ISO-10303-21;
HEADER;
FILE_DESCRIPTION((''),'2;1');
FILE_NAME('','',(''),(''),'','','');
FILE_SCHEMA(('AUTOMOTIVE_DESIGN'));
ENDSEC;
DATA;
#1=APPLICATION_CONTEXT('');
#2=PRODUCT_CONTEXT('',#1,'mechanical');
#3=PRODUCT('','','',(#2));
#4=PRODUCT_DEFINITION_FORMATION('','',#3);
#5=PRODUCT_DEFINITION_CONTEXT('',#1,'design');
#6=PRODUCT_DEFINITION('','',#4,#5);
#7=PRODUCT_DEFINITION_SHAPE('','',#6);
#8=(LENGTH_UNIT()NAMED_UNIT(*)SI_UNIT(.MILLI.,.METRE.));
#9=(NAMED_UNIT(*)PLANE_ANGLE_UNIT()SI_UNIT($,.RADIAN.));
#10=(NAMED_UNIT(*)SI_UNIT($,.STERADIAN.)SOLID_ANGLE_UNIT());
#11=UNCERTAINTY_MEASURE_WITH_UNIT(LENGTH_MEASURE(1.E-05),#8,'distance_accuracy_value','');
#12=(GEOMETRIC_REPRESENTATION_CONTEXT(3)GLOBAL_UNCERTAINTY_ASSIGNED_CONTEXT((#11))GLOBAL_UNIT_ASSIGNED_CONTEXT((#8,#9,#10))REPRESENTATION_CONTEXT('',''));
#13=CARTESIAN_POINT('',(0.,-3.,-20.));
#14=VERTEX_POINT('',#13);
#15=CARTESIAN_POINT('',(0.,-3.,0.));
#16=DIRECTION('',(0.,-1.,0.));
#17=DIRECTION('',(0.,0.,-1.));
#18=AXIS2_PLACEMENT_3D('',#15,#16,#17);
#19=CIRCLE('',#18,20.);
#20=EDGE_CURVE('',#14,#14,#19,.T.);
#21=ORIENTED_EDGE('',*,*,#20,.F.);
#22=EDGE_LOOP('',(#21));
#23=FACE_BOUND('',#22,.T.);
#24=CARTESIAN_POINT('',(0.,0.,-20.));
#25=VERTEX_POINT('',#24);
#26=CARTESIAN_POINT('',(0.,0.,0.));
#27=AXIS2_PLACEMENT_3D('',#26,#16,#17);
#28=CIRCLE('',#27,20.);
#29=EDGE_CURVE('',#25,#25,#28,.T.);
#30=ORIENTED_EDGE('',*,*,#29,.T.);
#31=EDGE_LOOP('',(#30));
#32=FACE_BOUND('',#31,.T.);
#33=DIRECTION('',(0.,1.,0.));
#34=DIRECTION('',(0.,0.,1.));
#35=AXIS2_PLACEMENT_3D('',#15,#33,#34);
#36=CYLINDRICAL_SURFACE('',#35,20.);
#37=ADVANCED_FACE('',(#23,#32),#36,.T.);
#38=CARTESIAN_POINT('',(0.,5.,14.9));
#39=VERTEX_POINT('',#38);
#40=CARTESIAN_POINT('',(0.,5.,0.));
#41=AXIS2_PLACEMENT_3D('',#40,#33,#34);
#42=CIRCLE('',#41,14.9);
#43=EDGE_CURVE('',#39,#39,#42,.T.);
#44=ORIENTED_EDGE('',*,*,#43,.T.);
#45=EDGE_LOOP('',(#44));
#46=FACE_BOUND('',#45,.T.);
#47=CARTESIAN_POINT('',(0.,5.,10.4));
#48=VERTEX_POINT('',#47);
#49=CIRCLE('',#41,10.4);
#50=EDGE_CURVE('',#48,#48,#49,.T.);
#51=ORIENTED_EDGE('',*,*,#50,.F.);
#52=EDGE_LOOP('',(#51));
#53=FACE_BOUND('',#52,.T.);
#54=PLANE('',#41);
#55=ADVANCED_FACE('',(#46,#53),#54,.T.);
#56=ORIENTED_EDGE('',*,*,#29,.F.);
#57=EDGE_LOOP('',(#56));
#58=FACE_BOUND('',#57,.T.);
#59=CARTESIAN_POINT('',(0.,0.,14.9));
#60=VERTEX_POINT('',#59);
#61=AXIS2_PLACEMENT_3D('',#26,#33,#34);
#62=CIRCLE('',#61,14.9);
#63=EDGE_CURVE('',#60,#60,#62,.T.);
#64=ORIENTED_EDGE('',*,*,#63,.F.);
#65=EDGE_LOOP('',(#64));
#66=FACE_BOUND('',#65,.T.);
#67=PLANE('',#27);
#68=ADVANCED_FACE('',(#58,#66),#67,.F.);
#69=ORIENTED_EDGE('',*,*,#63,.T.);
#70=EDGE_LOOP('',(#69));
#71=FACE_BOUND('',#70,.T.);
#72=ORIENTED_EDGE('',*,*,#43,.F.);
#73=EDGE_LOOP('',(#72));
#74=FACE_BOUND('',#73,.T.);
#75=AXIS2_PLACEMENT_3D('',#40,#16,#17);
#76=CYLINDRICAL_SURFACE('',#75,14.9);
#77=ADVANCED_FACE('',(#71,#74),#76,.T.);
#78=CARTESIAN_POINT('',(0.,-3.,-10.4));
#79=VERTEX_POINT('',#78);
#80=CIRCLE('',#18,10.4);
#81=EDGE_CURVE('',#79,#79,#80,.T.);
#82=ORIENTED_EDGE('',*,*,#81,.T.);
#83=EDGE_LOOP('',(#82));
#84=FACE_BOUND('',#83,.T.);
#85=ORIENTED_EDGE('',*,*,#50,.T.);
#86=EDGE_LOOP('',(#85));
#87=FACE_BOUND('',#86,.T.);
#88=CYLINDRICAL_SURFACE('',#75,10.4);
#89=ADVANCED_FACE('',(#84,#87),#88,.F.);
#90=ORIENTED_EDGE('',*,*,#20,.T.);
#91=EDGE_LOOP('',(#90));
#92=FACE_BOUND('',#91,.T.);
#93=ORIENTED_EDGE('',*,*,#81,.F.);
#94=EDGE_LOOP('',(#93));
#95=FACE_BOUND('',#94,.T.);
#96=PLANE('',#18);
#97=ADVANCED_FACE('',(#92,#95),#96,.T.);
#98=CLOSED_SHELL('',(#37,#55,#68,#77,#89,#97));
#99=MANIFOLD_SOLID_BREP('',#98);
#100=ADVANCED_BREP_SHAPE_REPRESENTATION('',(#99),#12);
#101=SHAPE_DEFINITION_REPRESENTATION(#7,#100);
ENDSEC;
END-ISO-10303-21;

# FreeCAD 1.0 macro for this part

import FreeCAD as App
import Part
import Sketcher

V = App.Vector

doc = App.newDocument("Part")
body = doc.addObject("PartDesign::Body", "Body")

# Sketch on XZ plane
sketch1 = body.newObject("Sketcher::SketchObject", "Sketch")
sketch1.AttachmentSupport = (doc.getObject("XZ_Plane"), [""])
sketch1.MapMode = "FlatFace"
sketch1.addGeometry([
    Part.Circle(V(0, 0, 0), V(0, 0, 1), 15),
    Part.Circle(V(0, 0, 0), V(0, 0, 1), 10),
], False)
sketch1.addConstraint([
    Sketcher.Constraint("Coincident", 0, 3, -1, 1),
    Sketcher.Constraint("Coincident", 1, 3, -1, 1),
    Sketcher.Constraint("Diameter", 0, 29.8),
    Sketcher.Constraint("Diameter", 1, 20.8),
])
pad1 = body.newObject("PartDesign::Pad", "Pad")
pad1.Profile = sketch1
pad1.Length = 5
pad1.Reversed = True

# Sketch on XZ plane
sketch2 = body.newObject("Sketcher::SketchObject", "Sketch001")
sketch2.AttachmentSupport = (doc.getObject("XZ_Plane"), [""])
sketch2.MapMode = "FlatFace"
sketch2.addGeometry([
    Part.Circle(V(0, 0, 0), V(0, 0, 1), 20),
    Part.Circle(V(0, 0, 0), V(0, 0, 1), 10),
], False)
sketch2.addConstraint([
    Sketcher.Constraint("Coincident", 0, 3, -1, 1),
    Sketcher.Constraint("Coincident", 1, 3, -1, 1),
    Sketcher.Constraint("Diameter", 0, 40.0),
    Sketcher.Constraint("Diameter", 1, 20.8),
])
pad2 = body.newObject("PartDesign::Pad", "Pad001")
pad2.Profile = sketch2
pad2.Length = 3

doc.recompute()
